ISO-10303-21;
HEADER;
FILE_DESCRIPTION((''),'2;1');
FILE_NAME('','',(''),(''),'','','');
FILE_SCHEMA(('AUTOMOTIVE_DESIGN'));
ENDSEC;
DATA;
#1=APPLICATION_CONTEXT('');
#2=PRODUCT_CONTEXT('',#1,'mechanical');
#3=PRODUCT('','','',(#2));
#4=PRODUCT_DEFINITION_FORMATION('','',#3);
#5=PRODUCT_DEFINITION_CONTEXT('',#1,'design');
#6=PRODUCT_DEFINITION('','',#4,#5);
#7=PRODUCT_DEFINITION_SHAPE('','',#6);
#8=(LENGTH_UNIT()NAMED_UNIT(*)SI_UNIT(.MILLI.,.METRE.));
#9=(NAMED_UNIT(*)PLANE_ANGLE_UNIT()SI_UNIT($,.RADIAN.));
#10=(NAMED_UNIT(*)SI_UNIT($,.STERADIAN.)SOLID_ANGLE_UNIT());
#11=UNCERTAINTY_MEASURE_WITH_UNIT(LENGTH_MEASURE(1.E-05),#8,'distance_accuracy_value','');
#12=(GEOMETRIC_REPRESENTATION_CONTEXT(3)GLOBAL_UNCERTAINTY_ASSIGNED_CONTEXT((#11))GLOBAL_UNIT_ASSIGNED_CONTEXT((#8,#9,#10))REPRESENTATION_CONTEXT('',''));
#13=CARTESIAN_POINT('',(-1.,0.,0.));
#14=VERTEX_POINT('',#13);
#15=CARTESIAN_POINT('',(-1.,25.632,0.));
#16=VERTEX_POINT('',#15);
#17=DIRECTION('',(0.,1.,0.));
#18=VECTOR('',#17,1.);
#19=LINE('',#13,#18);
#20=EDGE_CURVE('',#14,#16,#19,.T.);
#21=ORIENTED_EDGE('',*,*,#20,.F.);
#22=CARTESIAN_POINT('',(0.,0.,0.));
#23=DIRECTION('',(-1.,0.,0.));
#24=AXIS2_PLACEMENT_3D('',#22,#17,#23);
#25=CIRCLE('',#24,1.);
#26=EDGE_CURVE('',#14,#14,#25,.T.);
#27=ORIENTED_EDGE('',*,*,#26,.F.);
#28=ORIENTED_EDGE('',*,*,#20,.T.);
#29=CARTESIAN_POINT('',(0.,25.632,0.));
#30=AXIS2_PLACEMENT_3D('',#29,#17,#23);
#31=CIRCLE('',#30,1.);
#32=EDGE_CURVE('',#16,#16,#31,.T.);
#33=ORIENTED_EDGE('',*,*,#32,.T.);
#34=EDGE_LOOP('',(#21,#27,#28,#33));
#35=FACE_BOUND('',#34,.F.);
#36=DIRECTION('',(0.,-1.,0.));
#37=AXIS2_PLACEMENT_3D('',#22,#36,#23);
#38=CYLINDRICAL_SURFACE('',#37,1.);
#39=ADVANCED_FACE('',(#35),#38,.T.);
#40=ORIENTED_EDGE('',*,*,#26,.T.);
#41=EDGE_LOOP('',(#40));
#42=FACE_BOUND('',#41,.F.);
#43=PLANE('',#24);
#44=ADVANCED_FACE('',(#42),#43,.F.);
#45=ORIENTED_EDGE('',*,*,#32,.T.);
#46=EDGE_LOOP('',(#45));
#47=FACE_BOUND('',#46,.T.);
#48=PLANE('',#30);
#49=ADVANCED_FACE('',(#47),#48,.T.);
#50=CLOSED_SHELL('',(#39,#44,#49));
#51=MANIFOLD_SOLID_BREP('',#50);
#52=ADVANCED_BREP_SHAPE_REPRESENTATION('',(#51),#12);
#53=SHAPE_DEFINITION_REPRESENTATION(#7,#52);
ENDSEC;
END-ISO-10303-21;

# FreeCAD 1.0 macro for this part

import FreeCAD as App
import Part
import Sketcher

doc = App.newDocument("Part")
params = doc.addObject("Spreadsheet::Sheet", "Params")
for row, (alias, value) in enumerate([
    ("sketch1_diameter", "2 mm"),
    ("pad1_length", "25.632 mm"),
], start=1):
    params.set(f"A{row}", alias)
    params.set(f"B{row}", "=" + value)
    params.setAlias(f"B{row}", alias)

body = doc.addObject("PartDesign::Body", "Body")

# Sketch on XZ plane
sketch1 = body.newObject("Sketcher::SketchObject", "Sketch")
sketch1.AttachmentSupport = (doc.getObject("XZ_Plane"), [""])
sketch1.MapMode = "FlatFace"
sketch1.addGeometry(Part.Circle(App.Vector(0, 0, 0), App.Vector(0, 0, 1), 1), False)
sketch1.addConstraint([
    Sketcher.Constraint("Coincident", 0, 3, -1, 1),
    Sketcher.Constraint("Diameter", 0, 2.0),
])
sketch1.setExpression("Constraints[1]", "Params.sketch1_diameter")
pad1 = body.newObject("PartDesign::Pad", "Pad")
pad1.Profile = sketch1
pad1.setExpression("Length", "Params.pad1_length")
pad1.Reversed = True

doc.recompute()
